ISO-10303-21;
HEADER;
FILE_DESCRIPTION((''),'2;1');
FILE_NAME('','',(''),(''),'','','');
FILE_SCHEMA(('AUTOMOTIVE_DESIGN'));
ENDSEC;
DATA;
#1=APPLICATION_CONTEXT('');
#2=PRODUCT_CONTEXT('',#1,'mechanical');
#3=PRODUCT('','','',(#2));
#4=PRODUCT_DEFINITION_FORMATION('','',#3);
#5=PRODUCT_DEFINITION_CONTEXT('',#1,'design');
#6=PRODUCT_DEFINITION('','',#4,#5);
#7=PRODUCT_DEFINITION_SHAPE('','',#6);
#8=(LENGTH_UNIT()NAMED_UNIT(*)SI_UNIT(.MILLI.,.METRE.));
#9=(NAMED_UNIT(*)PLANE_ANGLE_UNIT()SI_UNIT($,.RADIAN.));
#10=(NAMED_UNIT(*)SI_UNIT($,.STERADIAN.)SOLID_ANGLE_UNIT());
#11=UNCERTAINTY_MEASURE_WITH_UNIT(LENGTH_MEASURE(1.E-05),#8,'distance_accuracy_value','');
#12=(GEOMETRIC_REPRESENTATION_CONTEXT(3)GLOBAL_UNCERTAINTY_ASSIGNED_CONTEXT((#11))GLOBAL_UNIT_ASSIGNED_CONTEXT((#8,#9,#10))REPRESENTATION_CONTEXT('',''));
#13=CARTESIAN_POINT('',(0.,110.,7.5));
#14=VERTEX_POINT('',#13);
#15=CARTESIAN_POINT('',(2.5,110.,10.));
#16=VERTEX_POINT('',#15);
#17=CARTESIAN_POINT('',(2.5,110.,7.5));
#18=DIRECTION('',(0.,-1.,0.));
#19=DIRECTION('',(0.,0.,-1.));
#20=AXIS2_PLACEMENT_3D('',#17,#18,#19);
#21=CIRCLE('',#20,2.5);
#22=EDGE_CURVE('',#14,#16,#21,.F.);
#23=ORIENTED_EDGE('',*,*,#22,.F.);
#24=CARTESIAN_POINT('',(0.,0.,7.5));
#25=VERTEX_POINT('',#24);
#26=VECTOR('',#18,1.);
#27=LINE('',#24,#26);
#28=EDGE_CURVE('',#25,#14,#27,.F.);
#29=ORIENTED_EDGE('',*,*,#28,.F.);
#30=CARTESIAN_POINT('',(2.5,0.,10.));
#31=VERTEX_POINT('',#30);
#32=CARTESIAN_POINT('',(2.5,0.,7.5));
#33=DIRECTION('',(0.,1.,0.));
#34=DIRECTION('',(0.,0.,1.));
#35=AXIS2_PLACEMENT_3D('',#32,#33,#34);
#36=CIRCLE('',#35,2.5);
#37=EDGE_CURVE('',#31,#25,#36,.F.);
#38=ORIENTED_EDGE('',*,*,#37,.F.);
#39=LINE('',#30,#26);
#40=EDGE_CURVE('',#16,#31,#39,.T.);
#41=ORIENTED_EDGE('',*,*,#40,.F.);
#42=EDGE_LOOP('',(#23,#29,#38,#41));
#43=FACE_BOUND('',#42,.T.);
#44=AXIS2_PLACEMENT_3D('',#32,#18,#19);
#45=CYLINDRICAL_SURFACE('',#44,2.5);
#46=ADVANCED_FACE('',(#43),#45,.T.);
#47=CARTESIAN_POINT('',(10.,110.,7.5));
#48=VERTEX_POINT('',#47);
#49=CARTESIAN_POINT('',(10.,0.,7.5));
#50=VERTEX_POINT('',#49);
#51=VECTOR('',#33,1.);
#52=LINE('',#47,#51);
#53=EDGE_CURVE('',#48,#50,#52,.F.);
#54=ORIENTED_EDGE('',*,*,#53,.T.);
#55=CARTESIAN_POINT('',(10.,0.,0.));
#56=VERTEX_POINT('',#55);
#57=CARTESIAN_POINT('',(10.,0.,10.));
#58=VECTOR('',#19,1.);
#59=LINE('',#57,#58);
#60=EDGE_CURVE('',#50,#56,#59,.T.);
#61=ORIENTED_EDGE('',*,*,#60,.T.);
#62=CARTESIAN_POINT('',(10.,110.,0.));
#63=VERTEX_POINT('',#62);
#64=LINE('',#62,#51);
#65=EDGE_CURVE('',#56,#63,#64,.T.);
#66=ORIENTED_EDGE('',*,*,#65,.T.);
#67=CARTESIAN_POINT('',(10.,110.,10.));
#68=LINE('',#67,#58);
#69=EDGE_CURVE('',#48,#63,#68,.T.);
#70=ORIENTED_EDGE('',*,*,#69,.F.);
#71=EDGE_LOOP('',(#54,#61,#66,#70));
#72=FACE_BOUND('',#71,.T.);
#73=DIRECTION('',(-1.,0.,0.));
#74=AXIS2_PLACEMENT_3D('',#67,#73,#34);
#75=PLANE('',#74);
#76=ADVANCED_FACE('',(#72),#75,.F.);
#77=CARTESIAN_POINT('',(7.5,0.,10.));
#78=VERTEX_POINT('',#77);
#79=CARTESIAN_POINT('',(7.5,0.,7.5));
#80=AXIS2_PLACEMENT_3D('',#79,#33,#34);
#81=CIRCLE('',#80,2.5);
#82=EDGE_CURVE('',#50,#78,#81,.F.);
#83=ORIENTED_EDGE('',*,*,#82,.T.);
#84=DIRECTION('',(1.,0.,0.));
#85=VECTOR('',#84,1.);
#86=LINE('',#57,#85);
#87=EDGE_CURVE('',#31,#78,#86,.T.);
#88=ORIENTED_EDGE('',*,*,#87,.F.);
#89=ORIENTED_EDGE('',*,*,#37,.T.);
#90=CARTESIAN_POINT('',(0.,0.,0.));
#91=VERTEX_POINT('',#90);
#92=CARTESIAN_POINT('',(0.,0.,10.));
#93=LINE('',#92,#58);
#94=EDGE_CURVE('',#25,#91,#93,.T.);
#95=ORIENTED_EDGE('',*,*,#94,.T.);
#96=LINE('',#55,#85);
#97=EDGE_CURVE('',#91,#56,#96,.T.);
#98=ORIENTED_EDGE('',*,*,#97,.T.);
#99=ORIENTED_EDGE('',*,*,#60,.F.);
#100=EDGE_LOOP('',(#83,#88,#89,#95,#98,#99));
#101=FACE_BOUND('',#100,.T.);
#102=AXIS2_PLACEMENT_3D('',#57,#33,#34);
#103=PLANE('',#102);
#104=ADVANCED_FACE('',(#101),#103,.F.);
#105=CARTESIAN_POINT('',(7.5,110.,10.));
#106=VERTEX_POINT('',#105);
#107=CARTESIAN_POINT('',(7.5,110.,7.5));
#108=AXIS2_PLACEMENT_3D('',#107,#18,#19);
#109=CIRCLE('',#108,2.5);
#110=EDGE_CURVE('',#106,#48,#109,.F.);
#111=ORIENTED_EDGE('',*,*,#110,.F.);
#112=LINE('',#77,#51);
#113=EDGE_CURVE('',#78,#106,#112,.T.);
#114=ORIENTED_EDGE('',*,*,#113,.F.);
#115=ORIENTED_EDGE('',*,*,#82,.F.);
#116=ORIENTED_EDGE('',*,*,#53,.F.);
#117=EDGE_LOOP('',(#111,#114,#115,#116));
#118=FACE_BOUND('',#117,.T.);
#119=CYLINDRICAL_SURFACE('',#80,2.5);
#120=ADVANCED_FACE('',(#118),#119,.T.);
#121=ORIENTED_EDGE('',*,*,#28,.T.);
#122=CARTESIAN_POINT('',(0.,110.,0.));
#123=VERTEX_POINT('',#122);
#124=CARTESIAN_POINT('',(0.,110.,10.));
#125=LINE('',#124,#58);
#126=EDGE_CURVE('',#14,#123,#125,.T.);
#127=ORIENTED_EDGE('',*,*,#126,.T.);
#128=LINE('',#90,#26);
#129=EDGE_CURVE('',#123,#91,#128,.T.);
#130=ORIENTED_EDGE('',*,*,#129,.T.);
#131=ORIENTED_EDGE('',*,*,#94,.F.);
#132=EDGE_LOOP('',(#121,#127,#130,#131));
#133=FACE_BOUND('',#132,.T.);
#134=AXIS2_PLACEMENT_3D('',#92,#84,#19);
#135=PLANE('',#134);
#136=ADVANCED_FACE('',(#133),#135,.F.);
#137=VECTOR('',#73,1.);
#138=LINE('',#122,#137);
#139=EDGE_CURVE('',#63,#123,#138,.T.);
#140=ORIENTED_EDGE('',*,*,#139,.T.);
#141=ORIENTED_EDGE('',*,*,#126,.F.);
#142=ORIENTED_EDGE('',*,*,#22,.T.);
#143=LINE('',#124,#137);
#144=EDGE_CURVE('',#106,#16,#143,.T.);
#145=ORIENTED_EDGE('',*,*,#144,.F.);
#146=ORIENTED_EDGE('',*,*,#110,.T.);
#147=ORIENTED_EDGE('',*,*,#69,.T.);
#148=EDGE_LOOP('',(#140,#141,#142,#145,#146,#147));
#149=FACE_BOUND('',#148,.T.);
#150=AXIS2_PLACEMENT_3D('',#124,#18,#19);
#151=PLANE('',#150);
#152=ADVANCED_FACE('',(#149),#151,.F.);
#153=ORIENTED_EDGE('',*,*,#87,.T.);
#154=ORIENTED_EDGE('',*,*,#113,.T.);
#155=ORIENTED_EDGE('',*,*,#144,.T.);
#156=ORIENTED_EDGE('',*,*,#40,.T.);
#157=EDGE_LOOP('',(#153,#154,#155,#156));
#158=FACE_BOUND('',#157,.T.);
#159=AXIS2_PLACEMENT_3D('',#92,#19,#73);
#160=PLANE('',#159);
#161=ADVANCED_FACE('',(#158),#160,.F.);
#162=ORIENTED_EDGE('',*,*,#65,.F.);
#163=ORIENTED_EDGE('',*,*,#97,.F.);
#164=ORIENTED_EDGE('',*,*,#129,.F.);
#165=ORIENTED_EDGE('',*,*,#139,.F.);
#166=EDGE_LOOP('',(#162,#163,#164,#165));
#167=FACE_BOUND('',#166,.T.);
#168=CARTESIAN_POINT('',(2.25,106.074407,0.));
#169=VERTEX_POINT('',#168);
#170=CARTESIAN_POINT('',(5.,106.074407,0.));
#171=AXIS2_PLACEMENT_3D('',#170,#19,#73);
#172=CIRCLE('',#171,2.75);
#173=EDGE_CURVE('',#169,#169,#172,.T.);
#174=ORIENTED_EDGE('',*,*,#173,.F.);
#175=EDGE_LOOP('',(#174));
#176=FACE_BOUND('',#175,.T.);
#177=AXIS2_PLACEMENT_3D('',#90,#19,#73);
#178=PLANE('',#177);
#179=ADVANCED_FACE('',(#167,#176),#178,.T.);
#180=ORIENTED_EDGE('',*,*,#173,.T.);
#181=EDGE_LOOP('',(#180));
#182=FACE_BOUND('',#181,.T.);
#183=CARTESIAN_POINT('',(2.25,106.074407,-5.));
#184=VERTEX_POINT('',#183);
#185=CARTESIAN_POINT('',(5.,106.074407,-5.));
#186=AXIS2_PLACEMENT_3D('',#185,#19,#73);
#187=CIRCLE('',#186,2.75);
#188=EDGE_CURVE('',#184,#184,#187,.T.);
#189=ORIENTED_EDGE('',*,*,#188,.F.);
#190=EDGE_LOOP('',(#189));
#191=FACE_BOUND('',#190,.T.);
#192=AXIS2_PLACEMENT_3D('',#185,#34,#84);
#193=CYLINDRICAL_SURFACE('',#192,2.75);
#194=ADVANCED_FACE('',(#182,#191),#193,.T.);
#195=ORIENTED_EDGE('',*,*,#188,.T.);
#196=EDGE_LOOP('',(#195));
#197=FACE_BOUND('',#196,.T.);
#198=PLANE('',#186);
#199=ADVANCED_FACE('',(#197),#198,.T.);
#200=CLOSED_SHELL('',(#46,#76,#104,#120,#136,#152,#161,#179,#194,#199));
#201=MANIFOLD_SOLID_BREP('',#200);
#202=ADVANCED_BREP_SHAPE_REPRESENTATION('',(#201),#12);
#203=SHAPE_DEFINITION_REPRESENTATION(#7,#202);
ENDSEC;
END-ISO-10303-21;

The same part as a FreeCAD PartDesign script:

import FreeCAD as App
import Part
import Sketcher


def edges_at(feature, points):
    """Names of the edges that pass closest to the given points."""
    edges = feature.Shape.Edges
    near = lambda p: min(range(len(edges)), key=lambda i: edges[i].distToShape(Part.Vertex(*p))[0])
    return sorted({f"Edge{near(p) + 1}" for p in points})

doc = App.newDocument("Part")
body = doc.addObject("PartDesign::Body", "Body")

sketch1 = doc.addObject("Sketcher::SketchObject", "Sketch")
body.addObject(sketch1)
sketch1.AttachmentSupport = (doc.XY_Plane, [""])
sketch1.MapMode = "FlatFace"
sketch1.addGeometry([
    Part.LineSegment(App.Vector(0, 110, 0), App.Vector(0, 0, 0)),
    Part.LineSegment(App.Vector(0, 0, 0), App.Vector(10, 0, 0)),
    Part.LineSegment(App.Vector(10, 0, 0), App.Vector(10, 110, 0)),
    Part.LineSegment(App.Vector(10, 110, 0), App.Vector(0, 110, 0)),
], False)
sketch1.addConstraint([
    Sketcher.Constraint("Coincident", 0, 2, 1, 1),
    Sketcher.Constraint("Coincident", 1, 2, 2, 1),
    Sketcher.Constraint("Coincident", 2, 2, 3, 1),
    Sketcher.Constraint("Coincident", 3, 2, 0, 1),
    Sketcher.Constraint("Vertical", 0),
    Sketcher.Constraint("Horizontal", 1),
    Sketcher.Constraint("Vertical", 2),
    Sketcher.Constraint("Horizontal", 3),
    Sketcher.Constraint("Coincident", 0, 2, -1, 1),
    Sketcher.Constraint("DistanceX", 1, 1, 1, 2, 10.0),
    Sketcher.Constraint("DistanceY", 0, 2, 0, 1, 110.0),
])
pad1 = doc.addObject("PartDesign::Pad", "Pad")
body.addObject(pad1)
pad1.Profile = sketch1
pad1.Length = 10

sketch2 = doc.addObject("Sketcher::SketchObject", "Sketch001")
body.addObject(sketch2)
sketch2.AttachmentSupport = (doc.XY_Plane, [""])
sketch2.MapMode = "FlatFace"
sketch2.addGeometry(Part.Circle(App.Vector(5, 106.1, 0), App.Vector(0, 0, 1), 2.8), False)
sketch2.addConstraint([
    Sketcher.Constraint("Diameter", 0, 5.5),
    Sketcher.Constraint("DistanceX", -1, 1, 0, 3, 5.0),
    Sketcher.Constraint("DistanceY", -1, 1, 0, 3, 106.074407),
])
pad2 = doc.addObject("PartDesign::Pad", "Pad001")
body.addObject(pad2)
pad2.Profile = sketch2
pad2.Length = 5
pad2.Reversed = True
doc.recompute()

fillet = doc.addObject("PartDesign::Fillet", "Fillet")
body.addObject(fillet)
fillet.Base = (pad2, edges_at(pad2, [(0, 55, 10), (10, 55, 10)]))
fillet.Radius = 2.5

doc.recompute()
